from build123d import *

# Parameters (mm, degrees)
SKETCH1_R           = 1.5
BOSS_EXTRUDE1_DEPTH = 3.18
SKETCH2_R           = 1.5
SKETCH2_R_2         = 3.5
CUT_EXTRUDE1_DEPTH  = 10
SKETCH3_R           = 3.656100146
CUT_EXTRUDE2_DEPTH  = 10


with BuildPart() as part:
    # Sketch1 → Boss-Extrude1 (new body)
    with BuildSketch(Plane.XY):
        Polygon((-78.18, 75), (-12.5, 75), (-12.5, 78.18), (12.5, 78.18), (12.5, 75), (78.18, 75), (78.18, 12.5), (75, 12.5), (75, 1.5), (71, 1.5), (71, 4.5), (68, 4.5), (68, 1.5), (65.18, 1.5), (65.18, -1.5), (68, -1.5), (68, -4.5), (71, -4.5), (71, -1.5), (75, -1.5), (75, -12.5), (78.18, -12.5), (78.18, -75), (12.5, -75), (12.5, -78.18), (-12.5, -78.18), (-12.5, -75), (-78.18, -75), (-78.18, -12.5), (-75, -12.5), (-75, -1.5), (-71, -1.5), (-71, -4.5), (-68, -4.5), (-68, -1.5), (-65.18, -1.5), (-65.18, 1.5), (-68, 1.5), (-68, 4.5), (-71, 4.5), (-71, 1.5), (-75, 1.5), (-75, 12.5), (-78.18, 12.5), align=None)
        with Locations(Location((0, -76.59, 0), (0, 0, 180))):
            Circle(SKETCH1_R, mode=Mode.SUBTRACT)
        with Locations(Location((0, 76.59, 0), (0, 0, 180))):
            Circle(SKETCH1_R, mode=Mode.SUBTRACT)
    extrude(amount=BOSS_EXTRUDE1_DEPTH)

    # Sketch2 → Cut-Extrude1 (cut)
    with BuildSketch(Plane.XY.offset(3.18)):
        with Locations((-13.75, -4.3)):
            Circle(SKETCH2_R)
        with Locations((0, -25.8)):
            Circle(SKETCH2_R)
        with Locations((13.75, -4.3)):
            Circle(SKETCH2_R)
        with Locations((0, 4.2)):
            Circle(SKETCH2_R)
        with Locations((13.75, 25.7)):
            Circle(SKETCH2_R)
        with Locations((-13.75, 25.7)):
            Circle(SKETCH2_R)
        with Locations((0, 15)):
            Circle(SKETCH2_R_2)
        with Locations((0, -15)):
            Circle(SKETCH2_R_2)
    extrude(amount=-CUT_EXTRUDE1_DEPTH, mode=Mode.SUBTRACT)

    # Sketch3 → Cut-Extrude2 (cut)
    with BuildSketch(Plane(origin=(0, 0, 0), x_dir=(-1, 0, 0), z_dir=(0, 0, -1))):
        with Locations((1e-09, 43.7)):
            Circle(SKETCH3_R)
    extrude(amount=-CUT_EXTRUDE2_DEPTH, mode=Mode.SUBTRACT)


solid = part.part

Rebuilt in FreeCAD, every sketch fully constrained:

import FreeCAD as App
import Part
import Sketcher

V = App.Vector


def add_polygon(sketch, points):
    """Adds a closed chain of lines whose ends are joined by coincident constraints."""
    first, n = sketch.GeometryCount, len(points)
    for a, b in zip(points, points[1:] + points[:1]):
        sketch.addGeometry(Part.LineSegment(App.Vector(*a, 0), App.Vector(*b, 0)), False)
    for i in range(n):
        sketch.addConstraint(Sketcher.Constraint("Coincident", first + i, 2, first + (i + 1) % n, 1))

doc = App.newDocument("Part")
body = doc.addObject("PartDesign::Body", "Body")

# Sketch on XY plane
sketch1 = body.newObject("Sketcher::SketchObject", "Sketch")
sketch1.AttachmentSupport = (doc.getObject("XY_Plane"), [""])
sketch1.MapMode = "FlatFace"
add_polygon(sketch1, [(-12.5, 75), (-78.2, 75), (-78.2, 12.5), (-75, 12.5), (-75, 1.5), (-71, 1.5), (-71, 4.5), (-68, 4.5), (-68, 1.5), (-65.2, 1.5), (-65.2, -1.5), (-68, -1.5), (-68, -4.5), (-71, -4.5), (-71, -1.5), (-75, -1.5), (-75, -12.5), (-78.2, -12.5), (-78.2, -75), (-12.5, -75), (-12.5, -78.2), (12.5, -78.2), (12.5, -75), (78.2, -75), (78.2, -12.5), (75, -12.5), (75, -1.5), (71, -1.5), (71, -4.5), (68, -4.5), (68, -1.5), (65.2, -1.5), (65.2, 1.5), (68, 1.5), (68, 4.5), (71, 4.5), (71, 1.5), (75, 1.5), (75, 12.5), (78.2, 12.5), (78.2, 75), (12.5, 75), (12.5, 78.2), (-12.5, 78.2)])  # lines 0-43
sketch1.addGeometry(Part.Circle(V(0, -76.6, 0), V(0, 0, 1), 1.5), False)  # 44
sketch1.addGeometry(Part.Circle(V(0, 76.6, 0), V(0, 0, 1), 1.5), False)  # 45
sketch1.addConstraint([
    Sketcher.Constraint("Horizontal", 0),
    Sketcher.Constraint("Vertical", 1),
    Sketcher.Constraint("Horizontal", 2),
    Sketcher.Constraint("Vertical", 3),
    Sketcher.Constraint("Horizontal", 4),
    Sketcher.Constraint("Vertical", 5),
    Sketcher.Constraint("Horizontal", 6),
    Sketcher.Constraint("Vertical", 7),
    Sketcher.Constraint("Horizontal", 8),
    Sketcher.Constraint("Vertical", 9),
    Sketcher.Constraint("Horizontal", 10),
    Sketcher.Constraint("Vertical", 11),
    Sketcher.Constraint("Horizontal", 12),
    Sketcher.Constraint("Vertical", 13),
    Sketcher.Constraint("Horizontal", 14),
    Sketcher.Constraint("Vertical", 15),
    Sketcher.Constraint("Horizontal", 16),
    Sketcher.Constraint("Vertical", 17),
    Sketcher.Constraint("Horizontal", 18),
    Sketcher.Constraint("Vertical", 19),
    Sketcher.Constraint("Horizontal", 20),
    Sketcher.Constraint("Vertical", 21),
    Sketcher.Constraint("Horizontal", 22),
    Sketcher.Constraint("Vertical", 23),
    Sketcher.Constraint("Horizontal", 24),
    Sketcher.Constraint("Vertical", 25),
    Sketcher.Constraint("Horizontal", 26),
    Sketcher.Constraint("Vertical", 27),
    Sketcher.Constraint("Horizontal", 28),
    Sketcher.Constraint("Vertical", 29),
    Sketcher.Constraint("Horizontal", 30),
    Sketcher.Constraint("Vertical", 31),
    Sketcher.Constraint("Horizontal", 32),
    Sketcher.Constraint("Vertical", 33),
    Sketcher.Constraint("Horizontal", 34),
    Sketcher.Constraint("Vertical", 35),
    Sketcher.Constraint("Horizontal", 36),
    Sketcher.Constraint("Vertical", 37),
    Sketcher.Constraint("Horizontal", 38),
    Sketcher.Constraint("Vertical", 39),
    Sketcher.Constraint("Horizontal", 40),
    Sketcher.Constraint("Vertical", 41),
    Sketcher.Constraint("Horizontal", 42),
    Sketcher.Constraint("Vertical", 43),
    Sketcher.Constraint("Equal", 44, 45),
    Sketcher.Constraint("Symmetric", 44, 3, 45, 3, -1, 1),
    Sketcher.Constraint("Symmetric", 0, 2, 22, 2, -1, 1),
    Sketcher.Constraint("Symmetric", 2, 2, 24, 2, -1, 1),
    Sketcher.Constraint("Symmetric", 4, 2, 26, 2, -1, 1),
    Sketcher.Constraint("Symmetric", 6, 2, 28, 2, -1, 1),
    Sketcher.Constraint("Symmetric", 8, 2, 30, 2, -1, 1),
    Sketcher.Constraint("Symmetric", 10, 2, 32, 2, -1, 1),
    Sketcher.Constraint("Symmetric", 12, 2, 34, 2, -1, 1),
    Sketcher.Constraint("Symmetric", 14, 2, 36, 2, -1, 1),
    Sketcher.Constraint("Symmetric", 16, 2, 38, 2, -1, 1),
    Sketcher.Constraint("Symmetric", 18, 2, 40, 2, -1, 1),
    Sketcher.Constraint("Symmetric", 20, 2, 42, 2, -1, 1),
    Sketcher.Constraint("Symmetric", 18, 2, 21, 2, -2),
    Sketcher.Constraint("Symmetric", 16, 2, 23, 2, -2),
    Sketcher.Constraint("Symmetric", 14, 2, 25, 2, -2),
    Sketcher.Constraint("Symmetric", 12, 2, 27, 2, -2),
    Sketcher.Constraint("Symmetric", 10, 2, 29, 2, -2),
    Sketcher.Constraint("PointOnObject", 44, 3, -2),
    Sketcher.Constraint("Horizontal", 4, 2, 7, 2),
    Sketcher.Constraint("Equal", 34, 5),
    Sketcher.Constraint("Equal", 7, 9),
    Sketcher.Constraint("Equal", 38, 19),
    Sketcher.Constraint("Diameter", 44, 3.0),
    Sketcher.Constraint("DistanceX", 4, 1, 4, 2, 4.0),
    Sketcher.Constraint("DistanceX", 6, 1, 6, 2, 3.0),
    Sketcher.Constraint("DistanceX", 20, 1, 20, 2, 25.0),
    Sketcher.Constraint("DistanceY", 3, 2, 3, 1, 11.0),
    Sketcher.Constraint("DistanceY", 1, 2, 1, 1, 62.5),
    Sketcher.Constraint("DistanceX", 2, 2, -1, 1, 75.0),
    Sketcher.Constraint("DistanceX", 0, 2, 0, 1, 65.68),
    Sketcher.Constraint("DistanceX", 8, 1, 8, 2, 2.82),
    Sketcher.Constraint("DistanceY", 44, 3, -1, 1, 76.59),
])
pad1 = body.newObject("PartDesign::Pad", "Pad")
pad1.Profile = sketch1
pad1.Length = 3.18

# Sketch on XY plane
sketch2 = body.newObject("Sketcher::SketchObject", "Sketch001")
sketch2.AttachmentSupport = (doc.getObject("XY_Plane"), [""])
sketch2.MapMode = "FlatFace"
sketch2.AttachmentOffset = App.Placement(V(0, 0, 3.18), App.Rotation())
sketch2.addGeometry([
    Part.Circle(V(-13.8, -4.3, 0), V(0, 0, 1), 1.5),  # 0
    Part.Circle(V(0, -25.8, 0), V(0, 0, 1), 1.5),  # 1
    Part.Circle(V(13.8, -4.3, 0), V(0, 0, 1), 1.5),  # 2
    Part.Circle(V(0, 4.2, 0), V(0, 0, 1), 1.5),  # 3
    Part.Circle(V(13.8, 25.7, 0), V(0, 0, 1), 1.5),  # 4
    Part.Circle(V(-13.8, 25.7, 0), V(0, 0, 1), 1.5),  # 5
    Part.Circle(V(0, 15, 0), V(0, 0, 1), 3.5),  # 6
    Part.Circle(V(0, -15, 0), V(0, 0, 1), 3.5),  # 7
], False)
sketch2.addConstraint([
    Sketcher.Constraint("Equal", 0, 1),
    Sketcher.Constraint("Equal", 1, 2),
    Sketcher.Constraint("Equal", 2, 3),
    Sketcher.Constraint("Equal", 3, 4),
    Sketcher.Constraint("Equal", 4, 5),
    Sketcher.Constraint("Equal", 6, 7),
    Sketcher.Constraint("Symmetric", 6, 3, 7, 3, -1, 1),
    Sketcher.Constraint("Symmetric", 0, 3, 2, 3, -2),
    Sketcher.Constraint("Symmetric", 4, 3, 5, 3, -2),
    Sketcher.Constraint("PointOnObject", 1, 3, -2),
    Sketcher.Constraint("PointOnObject", 3, 3, -2),
    Sketcher.Constraint("PointOnObject", 6, 3, -2),
    Sketcher.Constraint("Vertical", 2, 3, 4, 3),
    Sketcher.Constraint("Diameter", 0, 3.0),
    Sketcher.Constraint("Diameter", 6, 7.0),
    Sketcher.Constraint("DistanceY", -1, 1, 6, 3, 15.0),
    Sketcher.Constraint("DistanceY", 1, 3, 3, 3, 30.0),
    Sketcher.Constraint("DistanceY", 2, 3, 4, 3, 30.0),
    Sketcher.Constraint("DistanceY", 0, 3, -1, 1, 4.3),
    Sketcher.Constraint("DistanceY", 1, 3, -1, 1, 25.8),
    Sketcher.Constraint("DistanceX", 0, 3, 2, 3, 27.5),
])
pocket1 = body.newObject("PartDesign::Pocket", "Pocket")
pocket1.Profile = sketch2
pocket1.Length = 10

# Sketch on XY plane
sketch3 = body.newObject("Sketcher::SketchObject", "Sketch002")
sketch3.AttachmentSupport = (doc.getObject("XY_Plane"), [""])
sketch3.MapMode = "FlatFace"
sketch3.addGeometry(Part.Circle(V(0, 43.7, 0), V(0, 0, 1), 3.7), False)
sketch3.addConstraint([
    Sketcher.Constraint("PointOnObject", 0, 3, -2),
    Sketcher.Constraint("Diameter", 0, 7.3122),
    Sketcher.Constraint("DistanceY", -1, 1, 0, 3, 43.7),
])
pocket2 = body.newObject("PartDesign::Pocket", "Pocket001")
pocket2.Profile = sketch3
pocket2.Length = 10
pocket2.Reversed = True

doc.recompute()
